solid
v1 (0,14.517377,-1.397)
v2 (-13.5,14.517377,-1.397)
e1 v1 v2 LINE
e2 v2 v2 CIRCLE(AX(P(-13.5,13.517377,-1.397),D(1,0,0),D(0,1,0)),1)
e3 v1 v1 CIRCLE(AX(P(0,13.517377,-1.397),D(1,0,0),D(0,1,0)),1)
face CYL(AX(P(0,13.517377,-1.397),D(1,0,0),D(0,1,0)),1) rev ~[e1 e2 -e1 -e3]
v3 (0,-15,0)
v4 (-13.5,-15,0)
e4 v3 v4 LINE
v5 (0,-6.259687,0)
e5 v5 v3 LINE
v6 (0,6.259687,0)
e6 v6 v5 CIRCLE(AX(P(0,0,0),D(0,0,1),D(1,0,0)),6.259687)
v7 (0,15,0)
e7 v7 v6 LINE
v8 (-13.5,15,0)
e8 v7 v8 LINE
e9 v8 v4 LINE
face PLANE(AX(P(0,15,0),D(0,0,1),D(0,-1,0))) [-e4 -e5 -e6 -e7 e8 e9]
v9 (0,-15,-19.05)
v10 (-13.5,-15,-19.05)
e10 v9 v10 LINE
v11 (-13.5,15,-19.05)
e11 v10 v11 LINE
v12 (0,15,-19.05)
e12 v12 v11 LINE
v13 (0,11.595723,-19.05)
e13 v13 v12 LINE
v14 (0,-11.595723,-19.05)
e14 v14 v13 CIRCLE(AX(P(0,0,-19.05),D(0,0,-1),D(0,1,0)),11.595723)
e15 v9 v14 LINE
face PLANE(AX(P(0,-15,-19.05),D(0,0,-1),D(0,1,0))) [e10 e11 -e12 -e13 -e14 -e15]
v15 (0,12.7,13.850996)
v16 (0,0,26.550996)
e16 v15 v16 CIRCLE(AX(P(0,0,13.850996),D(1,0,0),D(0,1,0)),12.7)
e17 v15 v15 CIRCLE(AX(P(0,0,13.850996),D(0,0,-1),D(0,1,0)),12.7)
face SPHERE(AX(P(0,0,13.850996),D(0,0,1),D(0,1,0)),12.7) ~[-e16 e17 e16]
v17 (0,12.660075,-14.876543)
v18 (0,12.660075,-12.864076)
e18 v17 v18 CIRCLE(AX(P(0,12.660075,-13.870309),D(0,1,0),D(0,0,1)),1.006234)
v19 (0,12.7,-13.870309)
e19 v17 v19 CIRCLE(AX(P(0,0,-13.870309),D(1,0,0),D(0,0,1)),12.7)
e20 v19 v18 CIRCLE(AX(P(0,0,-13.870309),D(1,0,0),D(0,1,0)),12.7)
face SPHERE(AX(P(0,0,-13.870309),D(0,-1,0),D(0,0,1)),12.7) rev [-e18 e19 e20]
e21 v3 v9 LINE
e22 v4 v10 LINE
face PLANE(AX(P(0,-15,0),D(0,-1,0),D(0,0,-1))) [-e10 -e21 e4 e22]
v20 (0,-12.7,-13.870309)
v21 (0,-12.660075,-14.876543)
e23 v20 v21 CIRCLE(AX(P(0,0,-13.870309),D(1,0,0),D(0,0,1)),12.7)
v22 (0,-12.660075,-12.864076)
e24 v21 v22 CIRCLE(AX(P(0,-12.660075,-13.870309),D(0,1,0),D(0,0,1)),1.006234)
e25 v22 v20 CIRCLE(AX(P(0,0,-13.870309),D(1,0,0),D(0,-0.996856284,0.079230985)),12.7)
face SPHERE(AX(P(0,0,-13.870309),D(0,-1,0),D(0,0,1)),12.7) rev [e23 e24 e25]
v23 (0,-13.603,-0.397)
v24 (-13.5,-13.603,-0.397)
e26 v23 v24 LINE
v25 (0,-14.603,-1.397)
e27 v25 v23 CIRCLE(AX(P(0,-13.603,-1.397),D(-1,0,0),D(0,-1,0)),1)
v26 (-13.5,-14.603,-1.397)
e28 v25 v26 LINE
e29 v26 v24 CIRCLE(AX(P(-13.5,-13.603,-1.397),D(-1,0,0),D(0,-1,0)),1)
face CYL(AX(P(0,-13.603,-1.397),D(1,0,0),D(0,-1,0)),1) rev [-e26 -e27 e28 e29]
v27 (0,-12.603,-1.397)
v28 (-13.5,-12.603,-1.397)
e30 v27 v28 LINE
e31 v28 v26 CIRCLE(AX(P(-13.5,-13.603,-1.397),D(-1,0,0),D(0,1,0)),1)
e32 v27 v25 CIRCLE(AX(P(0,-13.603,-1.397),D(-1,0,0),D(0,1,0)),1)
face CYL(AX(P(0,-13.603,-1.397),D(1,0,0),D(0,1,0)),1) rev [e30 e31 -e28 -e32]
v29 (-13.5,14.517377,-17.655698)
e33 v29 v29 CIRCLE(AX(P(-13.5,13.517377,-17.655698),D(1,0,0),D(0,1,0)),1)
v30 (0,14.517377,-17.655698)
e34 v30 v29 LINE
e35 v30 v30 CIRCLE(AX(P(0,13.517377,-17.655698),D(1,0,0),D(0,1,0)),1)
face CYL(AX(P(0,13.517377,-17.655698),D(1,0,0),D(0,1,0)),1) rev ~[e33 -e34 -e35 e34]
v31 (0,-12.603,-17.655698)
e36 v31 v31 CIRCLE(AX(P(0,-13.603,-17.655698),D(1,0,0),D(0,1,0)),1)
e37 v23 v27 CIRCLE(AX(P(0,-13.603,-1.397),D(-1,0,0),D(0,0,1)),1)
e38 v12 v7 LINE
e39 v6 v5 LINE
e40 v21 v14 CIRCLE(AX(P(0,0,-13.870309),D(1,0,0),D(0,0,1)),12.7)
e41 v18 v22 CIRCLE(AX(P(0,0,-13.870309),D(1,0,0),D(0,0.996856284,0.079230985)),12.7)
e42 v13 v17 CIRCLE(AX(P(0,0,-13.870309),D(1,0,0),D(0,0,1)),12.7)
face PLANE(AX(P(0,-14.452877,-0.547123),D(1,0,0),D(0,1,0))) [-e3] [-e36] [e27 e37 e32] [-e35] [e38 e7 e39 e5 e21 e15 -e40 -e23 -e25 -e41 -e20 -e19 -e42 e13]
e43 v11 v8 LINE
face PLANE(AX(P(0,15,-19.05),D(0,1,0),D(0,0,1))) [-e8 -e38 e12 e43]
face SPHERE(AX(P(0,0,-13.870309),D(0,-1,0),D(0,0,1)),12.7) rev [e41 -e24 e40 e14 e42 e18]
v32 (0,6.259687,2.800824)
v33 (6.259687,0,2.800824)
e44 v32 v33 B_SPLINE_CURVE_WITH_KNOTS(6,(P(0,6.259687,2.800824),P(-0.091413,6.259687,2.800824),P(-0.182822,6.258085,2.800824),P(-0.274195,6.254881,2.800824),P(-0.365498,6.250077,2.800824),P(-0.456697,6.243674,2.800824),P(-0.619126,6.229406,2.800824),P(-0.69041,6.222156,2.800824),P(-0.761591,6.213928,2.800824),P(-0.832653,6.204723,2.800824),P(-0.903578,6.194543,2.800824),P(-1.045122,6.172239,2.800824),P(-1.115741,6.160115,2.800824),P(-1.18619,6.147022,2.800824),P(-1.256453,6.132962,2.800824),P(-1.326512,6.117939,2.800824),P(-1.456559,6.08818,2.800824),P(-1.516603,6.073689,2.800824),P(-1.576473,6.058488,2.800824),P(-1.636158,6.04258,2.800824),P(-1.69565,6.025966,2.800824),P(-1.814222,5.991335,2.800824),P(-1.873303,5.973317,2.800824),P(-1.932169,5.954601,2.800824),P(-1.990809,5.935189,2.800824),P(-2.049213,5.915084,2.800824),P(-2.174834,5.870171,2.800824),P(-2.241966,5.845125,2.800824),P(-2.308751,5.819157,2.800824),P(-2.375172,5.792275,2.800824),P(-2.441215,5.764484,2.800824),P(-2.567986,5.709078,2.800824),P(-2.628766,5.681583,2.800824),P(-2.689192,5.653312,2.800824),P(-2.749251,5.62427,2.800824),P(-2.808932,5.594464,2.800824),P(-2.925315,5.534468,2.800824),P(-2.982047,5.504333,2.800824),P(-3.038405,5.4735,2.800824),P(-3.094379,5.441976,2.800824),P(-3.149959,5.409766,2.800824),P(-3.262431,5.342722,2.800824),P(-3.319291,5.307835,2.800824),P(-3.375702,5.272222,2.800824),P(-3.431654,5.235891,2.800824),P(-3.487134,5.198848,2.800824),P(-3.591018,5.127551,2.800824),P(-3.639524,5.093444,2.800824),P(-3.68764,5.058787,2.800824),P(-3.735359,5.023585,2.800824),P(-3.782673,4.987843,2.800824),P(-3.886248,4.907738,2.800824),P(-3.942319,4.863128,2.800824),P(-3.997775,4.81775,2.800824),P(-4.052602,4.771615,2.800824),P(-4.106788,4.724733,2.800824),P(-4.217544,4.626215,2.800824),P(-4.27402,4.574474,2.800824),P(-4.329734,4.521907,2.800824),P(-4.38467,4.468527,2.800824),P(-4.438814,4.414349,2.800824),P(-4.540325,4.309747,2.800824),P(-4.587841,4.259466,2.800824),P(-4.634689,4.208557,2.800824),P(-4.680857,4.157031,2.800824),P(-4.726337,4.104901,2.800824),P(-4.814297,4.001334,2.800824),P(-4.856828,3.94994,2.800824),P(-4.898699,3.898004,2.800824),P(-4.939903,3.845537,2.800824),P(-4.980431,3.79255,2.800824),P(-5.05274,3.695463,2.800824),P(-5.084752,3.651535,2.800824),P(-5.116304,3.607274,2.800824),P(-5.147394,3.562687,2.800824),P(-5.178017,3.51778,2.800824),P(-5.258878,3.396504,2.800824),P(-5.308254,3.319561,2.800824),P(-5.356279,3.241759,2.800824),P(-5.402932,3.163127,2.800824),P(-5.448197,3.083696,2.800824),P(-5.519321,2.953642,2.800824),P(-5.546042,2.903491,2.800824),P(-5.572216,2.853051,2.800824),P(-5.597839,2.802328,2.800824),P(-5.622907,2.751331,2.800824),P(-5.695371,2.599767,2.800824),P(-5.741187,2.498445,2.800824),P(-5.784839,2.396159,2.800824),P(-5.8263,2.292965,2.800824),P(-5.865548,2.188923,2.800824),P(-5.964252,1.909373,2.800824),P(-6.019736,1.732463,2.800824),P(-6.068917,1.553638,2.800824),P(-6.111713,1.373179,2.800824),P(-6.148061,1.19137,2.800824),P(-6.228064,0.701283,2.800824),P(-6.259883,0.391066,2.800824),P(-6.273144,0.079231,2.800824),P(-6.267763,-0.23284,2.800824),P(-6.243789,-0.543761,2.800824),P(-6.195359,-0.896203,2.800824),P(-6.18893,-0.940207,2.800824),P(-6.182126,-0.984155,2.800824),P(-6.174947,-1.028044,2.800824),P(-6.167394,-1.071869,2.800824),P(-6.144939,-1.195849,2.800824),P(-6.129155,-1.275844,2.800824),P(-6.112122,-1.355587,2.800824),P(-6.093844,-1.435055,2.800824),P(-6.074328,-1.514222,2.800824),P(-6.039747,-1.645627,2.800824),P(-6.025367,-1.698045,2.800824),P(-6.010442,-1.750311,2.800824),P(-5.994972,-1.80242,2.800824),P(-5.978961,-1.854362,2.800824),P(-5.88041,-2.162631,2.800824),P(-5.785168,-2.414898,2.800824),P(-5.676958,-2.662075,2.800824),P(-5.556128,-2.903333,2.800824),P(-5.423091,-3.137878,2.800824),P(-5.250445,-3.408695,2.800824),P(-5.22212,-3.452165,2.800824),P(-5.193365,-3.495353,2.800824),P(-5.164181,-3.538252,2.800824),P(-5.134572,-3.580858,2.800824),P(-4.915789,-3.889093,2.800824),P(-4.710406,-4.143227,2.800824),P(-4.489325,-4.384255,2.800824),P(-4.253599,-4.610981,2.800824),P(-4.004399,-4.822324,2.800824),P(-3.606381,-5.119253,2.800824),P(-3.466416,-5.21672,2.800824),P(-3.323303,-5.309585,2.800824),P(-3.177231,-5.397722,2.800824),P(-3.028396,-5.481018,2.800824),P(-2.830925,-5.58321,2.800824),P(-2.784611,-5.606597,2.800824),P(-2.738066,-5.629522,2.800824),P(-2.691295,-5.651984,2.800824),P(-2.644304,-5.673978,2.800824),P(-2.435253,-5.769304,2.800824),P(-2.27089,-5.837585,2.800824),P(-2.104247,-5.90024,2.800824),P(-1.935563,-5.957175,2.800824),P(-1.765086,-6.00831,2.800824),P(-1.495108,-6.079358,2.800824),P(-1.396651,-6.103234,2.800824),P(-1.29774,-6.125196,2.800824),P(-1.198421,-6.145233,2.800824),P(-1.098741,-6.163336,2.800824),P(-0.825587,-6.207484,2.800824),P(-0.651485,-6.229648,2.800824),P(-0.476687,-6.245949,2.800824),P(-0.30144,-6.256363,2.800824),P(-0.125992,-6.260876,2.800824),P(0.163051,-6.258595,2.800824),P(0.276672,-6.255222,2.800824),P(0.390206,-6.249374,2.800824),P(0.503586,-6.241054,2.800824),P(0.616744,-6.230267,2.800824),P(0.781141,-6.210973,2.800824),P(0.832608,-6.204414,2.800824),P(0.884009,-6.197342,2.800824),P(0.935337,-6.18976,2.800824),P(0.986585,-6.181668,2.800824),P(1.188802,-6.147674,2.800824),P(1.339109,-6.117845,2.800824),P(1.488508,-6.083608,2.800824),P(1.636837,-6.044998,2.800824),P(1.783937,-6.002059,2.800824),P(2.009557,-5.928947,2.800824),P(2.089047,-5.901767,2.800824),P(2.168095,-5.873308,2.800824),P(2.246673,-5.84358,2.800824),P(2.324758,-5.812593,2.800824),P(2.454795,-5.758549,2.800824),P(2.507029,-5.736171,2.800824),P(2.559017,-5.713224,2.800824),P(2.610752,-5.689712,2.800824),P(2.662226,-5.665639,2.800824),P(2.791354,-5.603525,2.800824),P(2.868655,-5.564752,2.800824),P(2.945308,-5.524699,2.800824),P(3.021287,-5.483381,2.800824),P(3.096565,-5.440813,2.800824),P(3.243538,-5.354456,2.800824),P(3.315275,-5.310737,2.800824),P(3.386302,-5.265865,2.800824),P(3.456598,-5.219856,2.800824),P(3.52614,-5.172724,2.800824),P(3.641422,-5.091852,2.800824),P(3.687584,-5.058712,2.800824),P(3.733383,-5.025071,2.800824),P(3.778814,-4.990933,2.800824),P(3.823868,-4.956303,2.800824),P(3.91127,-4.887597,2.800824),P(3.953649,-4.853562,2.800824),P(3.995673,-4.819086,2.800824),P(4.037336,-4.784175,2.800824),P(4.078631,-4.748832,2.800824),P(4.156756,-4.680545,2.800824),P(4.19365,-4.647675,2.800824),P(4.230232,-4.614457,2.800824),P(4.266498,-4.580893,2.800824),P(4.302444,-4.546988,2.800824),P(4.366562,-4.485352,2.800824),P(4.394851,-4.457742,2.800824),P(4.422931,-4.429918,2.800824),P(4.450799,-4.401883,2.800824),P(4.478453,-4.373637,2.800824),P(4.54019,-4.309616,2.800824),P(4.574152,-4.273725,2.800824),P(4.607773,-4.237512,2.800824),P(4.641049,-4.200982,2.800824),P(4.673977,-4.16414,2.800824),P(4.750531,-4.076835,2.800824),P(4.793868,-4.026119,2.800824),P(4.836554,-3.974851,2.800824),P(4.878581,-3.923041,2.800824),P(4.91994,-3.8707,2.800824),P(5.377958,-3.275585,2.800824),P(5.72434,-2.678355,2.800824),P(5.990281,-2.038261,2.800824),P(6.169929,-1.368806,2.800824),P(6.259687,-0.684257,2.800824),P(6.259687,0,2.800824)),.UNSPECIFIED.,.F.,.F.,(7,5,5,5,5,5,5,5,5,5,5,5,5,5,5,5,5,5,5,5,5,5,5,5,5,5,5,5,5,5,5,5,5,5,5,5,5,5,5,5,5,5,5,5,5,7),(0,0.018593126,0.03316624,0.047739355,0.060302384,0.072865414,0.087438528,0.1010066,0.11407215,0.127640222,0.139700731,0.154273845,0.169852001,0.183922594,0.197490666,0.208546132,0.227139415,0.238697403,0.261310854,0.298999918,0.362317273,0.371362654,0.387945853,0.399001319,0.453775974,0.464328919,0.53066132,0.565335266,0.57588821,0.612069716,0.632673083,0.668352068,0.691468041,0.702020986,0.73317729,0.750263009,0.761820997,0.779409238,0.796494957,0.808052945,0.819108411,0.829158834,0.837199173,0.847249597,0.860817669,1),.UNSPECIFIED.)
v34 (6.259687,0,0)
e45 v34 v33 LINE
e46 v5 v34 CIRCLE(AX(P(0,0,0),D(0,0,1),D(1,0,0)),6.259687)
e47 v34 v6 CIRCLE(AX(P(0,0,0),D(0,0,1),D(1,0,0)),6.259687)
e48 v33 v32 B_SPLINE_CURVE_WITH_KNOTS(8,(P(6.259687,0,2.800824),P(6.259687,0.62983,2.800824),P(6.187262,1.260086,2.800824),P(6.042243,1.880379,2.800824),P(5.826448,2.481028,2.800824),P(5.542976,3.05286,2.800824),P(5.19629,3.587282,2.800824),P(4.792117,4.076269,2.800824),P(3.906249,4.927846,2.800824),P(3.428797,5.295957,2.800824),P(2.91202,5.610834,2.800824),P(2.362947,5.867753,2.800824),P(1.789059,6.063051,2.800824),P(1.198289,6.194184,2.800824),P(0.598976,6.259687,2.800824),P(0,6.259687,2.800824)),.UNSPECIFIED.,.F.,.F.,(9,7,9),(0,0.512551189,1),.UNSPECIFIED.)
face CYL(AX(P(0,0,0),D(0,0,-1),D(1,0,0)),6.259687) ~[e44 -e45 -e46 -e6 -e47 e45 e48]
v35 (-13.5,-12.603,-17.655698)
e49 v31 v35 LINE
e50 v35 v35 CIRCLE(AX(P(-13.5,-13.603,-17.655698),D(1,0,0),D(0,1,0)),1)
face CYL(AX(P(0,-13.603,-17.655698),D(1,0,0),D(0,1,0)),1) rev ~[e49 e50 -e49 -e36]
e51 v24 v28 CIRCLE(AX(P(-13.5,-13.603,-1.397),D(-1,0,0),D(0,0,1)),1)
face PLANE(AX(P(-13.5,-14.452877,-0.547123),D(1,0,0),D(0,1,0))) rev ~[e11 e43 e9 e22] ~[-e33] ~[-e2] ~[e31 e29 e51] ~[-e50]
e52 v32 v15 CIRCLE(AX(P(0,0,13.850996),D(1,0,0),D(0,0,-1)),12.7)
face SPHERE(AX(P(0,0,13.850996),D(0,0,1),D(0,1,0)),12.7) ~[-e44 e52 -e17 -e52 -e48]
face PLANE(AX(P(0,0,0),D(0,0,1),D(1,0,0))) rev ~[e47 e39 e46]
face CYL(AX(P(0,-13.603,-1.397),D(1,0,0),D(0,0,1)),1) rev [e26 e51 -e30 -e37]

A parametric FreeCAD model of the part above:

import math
import FreeCAD as App
import Part
import Sketcher


def add_polygon(sketch, points):
    """Adds a closed chain of lines whose ends are joined by coincident constraints."""
    first, n = sketch.GeometryCount, len(points)
    for a, b in zip(points, points[1:] + points[:1]):
        sketch.addGeometry(Part.LineSegment(App.Vector(*a, 0), App.Vector(*b, 0)), False)
    for i in range(n):
        sketch.addConstraint(Sketcher.Constraint("Coincident", first + i, 2, first + (i + 1) % n, 1))

doc = App.newDocument("Part")
params = doc.addObject("Spreadsheet::Sheet", "Params")
for row, (alias, value) in enumerate([
    ("sketch1_radius", "12.7 mm"),
    ("revolution_angle", "360 deg"),
    ("pad1_length", "3.048 mm"),
    ("sketch3_diameter", "2 mm"),
    ("sketch3_width", "30 mm"),
    ("sketch3_height", "19.05 mm"),
    ("pad2_length", "13.5 mm"),
    ("sketch4_radius", "12.7 mm"),
    ("groove_angle", "360 deg"),
], start=1):
    params.set(f"A{row}", alias)
    params.set(f"B{row}", "=" + value)
    params.setAlias(f"B{row}", alias)

body = doc.addObject("PartDesign::Body", "Body")

sketch1 = doc.addObject("Sketcher::SketchObject", "Sketch")
body.addObject(sketch1)
sketch1.AttachmentSupport = (doc.YZ_Plane, [""])
sketch1.MapMode = "FlatFace"
sketch1.addGeometry([
    Part.ArcOfCircle(Part.Circle(App.Vector(0, 13.850996, 0), App.Vector(0, 0, 1), 12.7), math.radians(-90), math.radians(0)),
    Part.ArcOfCircle(Part.Circle(App.Vector(0, 13.850996, 0), App.Vector(0, 0, 1), 12.7), math.radians(0), math.radians(90)),
    Part.LineSegment(App.Vector(0, 26.550996, 0), App.Vector(0, 1.150996, 0)),
], False)
sketch1.addConstraint([
    Sketcher.Constraint("Tangent", 0, 2, 1, 1),
    Sketcher.Constraint("Coincident", 1, 2, 2, 1),
    Sketcher.Constraint("Coincident", 2, 2, 0, 1),
    Sketcher.Constraint("Vertical", 2),
    Sketcher.Constraint("Equal", 0, 1),
    Sketcher.Constraint("PointOnObject", 0, 3, -2),
    Sketcher.Constraint("PointOnObject", 1, 2, -2),
    Sketcher.Constraint("Horizontal", 1, 3, 0, 2),
    Sketcher.Constraint("Radius", 0, 12.7),
    Sketcher.Constraint("DistanceY", -1, 1, 0, 3, 13.850996),
])
sketch1.setExpression("Constraints[8]", "Params.sketch1_radius")
revolution = doc.addObject("PartDesign::Revolution", "Revolution")
body.addObject(revolution)
revolution.Profile = sketch1
revolution.ReferenceAxis = (sketch1, ["V_Axis"])
revolution.setExpression("Angle", "Params.revolution_angle")

sketch2 = doc.addObject("Sketcher::SketchObject", "Sketch001")
body.addObject(sketch2)
sketch2.AttachmentSupport = (doc.XY_Plane, [""])
sketch2.MapMode = "FlatFace"
sketch2.addGeometry(Part.Circle(App.Vector(0, 0, 0), App.Vector(0, 0, 1), 6.259687), False)
sketch2.addConstraint([
    Sketcher.Constraint("Coincident", 0, 3, -1, 1),
    Sketcher.Constraint("Diameter", 0, 12.519374),
])
pad1 = doc.addObject("PartDesign::Pad", "Pad")
body.addObject(pad1)
pad1.Profile = sketch2
pad1.setExpression("Length", "Params.pad1_length")

sketch3 = doc.addObject("Sketcher::SketchObject", "Sketch002")
body.addObject(sketch3)
sketch3.AttachmentSupport = (doc.YZ_Plane, [""])
sketch3.MapMode = "FlatFace"
add_polygon(sketch3, [(-15, 0), (-15, -19.05), (15, -19.05), (15, 0)])
sketch3.addGeometry(Part.Circle(App.Vector(-13.603, -17.655698, 0), App.Vector(0, 0, 1), 1), False)
sketch3.addGeometry(Part.Circle(App.Vector(13.517377, -17.655698, 0), App.Vector(0, 0, 1), 1), False)
sketch3.addGeometry(Part.ArcOfCircle(Part.Circle(App.Vector(-13.603, -1.397, 0), App.Vector(0, 0, 1), 1), math.radians(90), math.radians(180)), False)
sketch3.addGeometry(Part.ArcOfCircle(Part.Circle(App.Vector(-13.603, -1.397, 0), App.Vector(0, 0, 1), 1), math.radians(0), math.radians(90)), False)
sketch3.addGeometry(Part.ArcOfCircle(Part.Circle(App.Vector(-13.603, -1.397, 0), App.Vector(0, 0, 1), 1), math.radians(180), math.radians(360)), False)
sketch3.addGeometry(Part.Circle(App.Vector(13.517377, -1.397, 0), App.Vector(0, 0, 1), 1), False)
sketch3.addConstraint([
    Sketcher.Constraint("Tangent", 6, 1, 7, 2),
    Sketcher.Constraint("Tangent", 7, 1, 8, 2),
    Sketcher.Constraint("Tangent", 8, 1, 6, 2),
    Sketcher.Constraint("Vertical", 0),
    Sketcher.Constraint("Horizontal", 1),
    Sketcher.Constraint("Vertical", 2),
    Sketcher.Constraint("Horizontal", 3),
    Sketcher.Constraint("Equal", 4, 5),
    Sketcher.Constraint("Equal", 5, 6),
    Sketcher.Constraint("Equal", 8, 9),
    Sketcher.Constraint("Symmetric", 2, 2, 3, 2, -1, 1),
    Sketcher.Constraint("Horizontal", 4, 3, 5, 3),
    Sketcher.Constraint("Horizontal", 8, 3, 9, 3),
    Sketcher.Constraint("Horizontal", 9, 3, 7, 1),
    Sketcher.Constraint("Horizontal", 7, 1, 8, 1),
    Sketcher.Constraint("Vertical", 4, 3, 6, 3),
    Sketcher.Constraint("Vertical", 5, 3, 9, 3),
    Sketcher.Constraint("Vertical", 8, 3, 6, 1),
    Sketcher.Constraint("Diameter", 4, 2.0),
    Sketcher.Constraint("DistanceX", 1, 1, 1, 2, 30.0),
    Sketcher.Constraint("DistanceY", 0, 2, 0, 1, 19.05),
    Sketcher.Constraint("DistanceX", 4, 3, -1, 1, 13.603),
    Sketcher.Constraint("DistanceY", 6, 3, -1, 1, 1.397),
    Sketcher.Constraint("DistanceY", 4, 3, -1, 1, 17.655698),
    Sketcher.Constraint("DistanceX", -1, 1, 5, 3, 13.517377),
])
sketch3.setExpression("Constraints[22]", "Params.sketch3_diameter")
sketch3.setExpression("Constraints[23]", "Params.sketch3_width")
sketch3.setExpression("Constraints[24]", "Params.sketch3_height")
pad2 = doc.addObject("PartDesign::Pad", "Pad001")
body.addObject(pad2)
pad2.Profile = sketch3
pad2.setExpression("Length", "Params.pad2_length")
pad2.Reversed = True

sketch4 = doc.addObject("Sketcher::SketchObject", "Sketch003")
body.addObject(sketch4)
sketch4.AttachmentSupport = (doc.YZ_Plane, [""])
sketch4.MapMode = "FlatFace"
sketch4.addGeometry([
    Part.ArcOfCircle(Part.Circle(App.Vector(0, -13.870309, 0), App.Vector(0, 0, 1), 12.7), math.radians(4.544364), math.radians(175.455636)),
    Part.ArcOfCircle(Part.Circle(App.Vector(0, -13.870309, 0), App.Vector(0, 0, 1), 12.7), math.radians(175.455636), math.radians(180)),
    Part.LineSegment(App.Vector(-12.7, -13.870309, 0), App.Vector(12.7, -13.870309, 0)),
    Part.ArcOfCircle(Part.Circle(App.Vector(0, -13.870309, 0), App.Vector(0, 0, 1), 12.7), math.radians(0), math.radians(4.544364)),
], False)
sketch4.addGeometry(Part.LineSegment(App.Vector(-12.7, -13.870309, 0), App.Vector(12.7, -13.870309, 0)), True)
sketch4.addConstraint([
    Sketcher.Constraint("Tangent", 0, 2, 1, 1),
    Sketcher.Constraint("Coincident", 1, 2, 2, 1),
    Sketcher.Constraint("Coincident", 2, 2, 3, 1),
    Sketcher.Constraint("Tangent", 3, 2, 0, 1),
    Sketcher.Constraint("Horizontal", 2),
    Sketcher.Constraint("Horizontal", 4),
    Sketcher.Constraint("Coincident", 4, 1, 1, 2),
    Sketcher.Constraint("Equal", 0, 1),
    Sketcher.Constraint("Equal", 1, 3),
    Sketcher.Constraint("Symmetric", 0, 2, 3, 2, -2),
    Sketcher.Constraint("Horizontal", 3, 3, 1, 2),
    Sketcher.Constraint("Equal", 2, 4),
    Sketcher.Constraint("Radius", 0, 12.7),
    Sketcher.Constraint("DistanceY", 0, 3, -1, 1, 13.870309),
    Sketcher.Constraint("DistanceX", 0, 2, 3, 2, 25.32015),
])
sketch4.setExpression("Constraints[12]", "Params.sketch4_radius")
groove = doc.addObject("PartDesign::Groove", "Groove")
body.addObject(groove)
groove.Profile = sketch4
groove.ReferenceAxis = (sketch4, ["Axis0"])
groove.setExpression("Angle", "Params.groove_angle")

doc.recompute()
